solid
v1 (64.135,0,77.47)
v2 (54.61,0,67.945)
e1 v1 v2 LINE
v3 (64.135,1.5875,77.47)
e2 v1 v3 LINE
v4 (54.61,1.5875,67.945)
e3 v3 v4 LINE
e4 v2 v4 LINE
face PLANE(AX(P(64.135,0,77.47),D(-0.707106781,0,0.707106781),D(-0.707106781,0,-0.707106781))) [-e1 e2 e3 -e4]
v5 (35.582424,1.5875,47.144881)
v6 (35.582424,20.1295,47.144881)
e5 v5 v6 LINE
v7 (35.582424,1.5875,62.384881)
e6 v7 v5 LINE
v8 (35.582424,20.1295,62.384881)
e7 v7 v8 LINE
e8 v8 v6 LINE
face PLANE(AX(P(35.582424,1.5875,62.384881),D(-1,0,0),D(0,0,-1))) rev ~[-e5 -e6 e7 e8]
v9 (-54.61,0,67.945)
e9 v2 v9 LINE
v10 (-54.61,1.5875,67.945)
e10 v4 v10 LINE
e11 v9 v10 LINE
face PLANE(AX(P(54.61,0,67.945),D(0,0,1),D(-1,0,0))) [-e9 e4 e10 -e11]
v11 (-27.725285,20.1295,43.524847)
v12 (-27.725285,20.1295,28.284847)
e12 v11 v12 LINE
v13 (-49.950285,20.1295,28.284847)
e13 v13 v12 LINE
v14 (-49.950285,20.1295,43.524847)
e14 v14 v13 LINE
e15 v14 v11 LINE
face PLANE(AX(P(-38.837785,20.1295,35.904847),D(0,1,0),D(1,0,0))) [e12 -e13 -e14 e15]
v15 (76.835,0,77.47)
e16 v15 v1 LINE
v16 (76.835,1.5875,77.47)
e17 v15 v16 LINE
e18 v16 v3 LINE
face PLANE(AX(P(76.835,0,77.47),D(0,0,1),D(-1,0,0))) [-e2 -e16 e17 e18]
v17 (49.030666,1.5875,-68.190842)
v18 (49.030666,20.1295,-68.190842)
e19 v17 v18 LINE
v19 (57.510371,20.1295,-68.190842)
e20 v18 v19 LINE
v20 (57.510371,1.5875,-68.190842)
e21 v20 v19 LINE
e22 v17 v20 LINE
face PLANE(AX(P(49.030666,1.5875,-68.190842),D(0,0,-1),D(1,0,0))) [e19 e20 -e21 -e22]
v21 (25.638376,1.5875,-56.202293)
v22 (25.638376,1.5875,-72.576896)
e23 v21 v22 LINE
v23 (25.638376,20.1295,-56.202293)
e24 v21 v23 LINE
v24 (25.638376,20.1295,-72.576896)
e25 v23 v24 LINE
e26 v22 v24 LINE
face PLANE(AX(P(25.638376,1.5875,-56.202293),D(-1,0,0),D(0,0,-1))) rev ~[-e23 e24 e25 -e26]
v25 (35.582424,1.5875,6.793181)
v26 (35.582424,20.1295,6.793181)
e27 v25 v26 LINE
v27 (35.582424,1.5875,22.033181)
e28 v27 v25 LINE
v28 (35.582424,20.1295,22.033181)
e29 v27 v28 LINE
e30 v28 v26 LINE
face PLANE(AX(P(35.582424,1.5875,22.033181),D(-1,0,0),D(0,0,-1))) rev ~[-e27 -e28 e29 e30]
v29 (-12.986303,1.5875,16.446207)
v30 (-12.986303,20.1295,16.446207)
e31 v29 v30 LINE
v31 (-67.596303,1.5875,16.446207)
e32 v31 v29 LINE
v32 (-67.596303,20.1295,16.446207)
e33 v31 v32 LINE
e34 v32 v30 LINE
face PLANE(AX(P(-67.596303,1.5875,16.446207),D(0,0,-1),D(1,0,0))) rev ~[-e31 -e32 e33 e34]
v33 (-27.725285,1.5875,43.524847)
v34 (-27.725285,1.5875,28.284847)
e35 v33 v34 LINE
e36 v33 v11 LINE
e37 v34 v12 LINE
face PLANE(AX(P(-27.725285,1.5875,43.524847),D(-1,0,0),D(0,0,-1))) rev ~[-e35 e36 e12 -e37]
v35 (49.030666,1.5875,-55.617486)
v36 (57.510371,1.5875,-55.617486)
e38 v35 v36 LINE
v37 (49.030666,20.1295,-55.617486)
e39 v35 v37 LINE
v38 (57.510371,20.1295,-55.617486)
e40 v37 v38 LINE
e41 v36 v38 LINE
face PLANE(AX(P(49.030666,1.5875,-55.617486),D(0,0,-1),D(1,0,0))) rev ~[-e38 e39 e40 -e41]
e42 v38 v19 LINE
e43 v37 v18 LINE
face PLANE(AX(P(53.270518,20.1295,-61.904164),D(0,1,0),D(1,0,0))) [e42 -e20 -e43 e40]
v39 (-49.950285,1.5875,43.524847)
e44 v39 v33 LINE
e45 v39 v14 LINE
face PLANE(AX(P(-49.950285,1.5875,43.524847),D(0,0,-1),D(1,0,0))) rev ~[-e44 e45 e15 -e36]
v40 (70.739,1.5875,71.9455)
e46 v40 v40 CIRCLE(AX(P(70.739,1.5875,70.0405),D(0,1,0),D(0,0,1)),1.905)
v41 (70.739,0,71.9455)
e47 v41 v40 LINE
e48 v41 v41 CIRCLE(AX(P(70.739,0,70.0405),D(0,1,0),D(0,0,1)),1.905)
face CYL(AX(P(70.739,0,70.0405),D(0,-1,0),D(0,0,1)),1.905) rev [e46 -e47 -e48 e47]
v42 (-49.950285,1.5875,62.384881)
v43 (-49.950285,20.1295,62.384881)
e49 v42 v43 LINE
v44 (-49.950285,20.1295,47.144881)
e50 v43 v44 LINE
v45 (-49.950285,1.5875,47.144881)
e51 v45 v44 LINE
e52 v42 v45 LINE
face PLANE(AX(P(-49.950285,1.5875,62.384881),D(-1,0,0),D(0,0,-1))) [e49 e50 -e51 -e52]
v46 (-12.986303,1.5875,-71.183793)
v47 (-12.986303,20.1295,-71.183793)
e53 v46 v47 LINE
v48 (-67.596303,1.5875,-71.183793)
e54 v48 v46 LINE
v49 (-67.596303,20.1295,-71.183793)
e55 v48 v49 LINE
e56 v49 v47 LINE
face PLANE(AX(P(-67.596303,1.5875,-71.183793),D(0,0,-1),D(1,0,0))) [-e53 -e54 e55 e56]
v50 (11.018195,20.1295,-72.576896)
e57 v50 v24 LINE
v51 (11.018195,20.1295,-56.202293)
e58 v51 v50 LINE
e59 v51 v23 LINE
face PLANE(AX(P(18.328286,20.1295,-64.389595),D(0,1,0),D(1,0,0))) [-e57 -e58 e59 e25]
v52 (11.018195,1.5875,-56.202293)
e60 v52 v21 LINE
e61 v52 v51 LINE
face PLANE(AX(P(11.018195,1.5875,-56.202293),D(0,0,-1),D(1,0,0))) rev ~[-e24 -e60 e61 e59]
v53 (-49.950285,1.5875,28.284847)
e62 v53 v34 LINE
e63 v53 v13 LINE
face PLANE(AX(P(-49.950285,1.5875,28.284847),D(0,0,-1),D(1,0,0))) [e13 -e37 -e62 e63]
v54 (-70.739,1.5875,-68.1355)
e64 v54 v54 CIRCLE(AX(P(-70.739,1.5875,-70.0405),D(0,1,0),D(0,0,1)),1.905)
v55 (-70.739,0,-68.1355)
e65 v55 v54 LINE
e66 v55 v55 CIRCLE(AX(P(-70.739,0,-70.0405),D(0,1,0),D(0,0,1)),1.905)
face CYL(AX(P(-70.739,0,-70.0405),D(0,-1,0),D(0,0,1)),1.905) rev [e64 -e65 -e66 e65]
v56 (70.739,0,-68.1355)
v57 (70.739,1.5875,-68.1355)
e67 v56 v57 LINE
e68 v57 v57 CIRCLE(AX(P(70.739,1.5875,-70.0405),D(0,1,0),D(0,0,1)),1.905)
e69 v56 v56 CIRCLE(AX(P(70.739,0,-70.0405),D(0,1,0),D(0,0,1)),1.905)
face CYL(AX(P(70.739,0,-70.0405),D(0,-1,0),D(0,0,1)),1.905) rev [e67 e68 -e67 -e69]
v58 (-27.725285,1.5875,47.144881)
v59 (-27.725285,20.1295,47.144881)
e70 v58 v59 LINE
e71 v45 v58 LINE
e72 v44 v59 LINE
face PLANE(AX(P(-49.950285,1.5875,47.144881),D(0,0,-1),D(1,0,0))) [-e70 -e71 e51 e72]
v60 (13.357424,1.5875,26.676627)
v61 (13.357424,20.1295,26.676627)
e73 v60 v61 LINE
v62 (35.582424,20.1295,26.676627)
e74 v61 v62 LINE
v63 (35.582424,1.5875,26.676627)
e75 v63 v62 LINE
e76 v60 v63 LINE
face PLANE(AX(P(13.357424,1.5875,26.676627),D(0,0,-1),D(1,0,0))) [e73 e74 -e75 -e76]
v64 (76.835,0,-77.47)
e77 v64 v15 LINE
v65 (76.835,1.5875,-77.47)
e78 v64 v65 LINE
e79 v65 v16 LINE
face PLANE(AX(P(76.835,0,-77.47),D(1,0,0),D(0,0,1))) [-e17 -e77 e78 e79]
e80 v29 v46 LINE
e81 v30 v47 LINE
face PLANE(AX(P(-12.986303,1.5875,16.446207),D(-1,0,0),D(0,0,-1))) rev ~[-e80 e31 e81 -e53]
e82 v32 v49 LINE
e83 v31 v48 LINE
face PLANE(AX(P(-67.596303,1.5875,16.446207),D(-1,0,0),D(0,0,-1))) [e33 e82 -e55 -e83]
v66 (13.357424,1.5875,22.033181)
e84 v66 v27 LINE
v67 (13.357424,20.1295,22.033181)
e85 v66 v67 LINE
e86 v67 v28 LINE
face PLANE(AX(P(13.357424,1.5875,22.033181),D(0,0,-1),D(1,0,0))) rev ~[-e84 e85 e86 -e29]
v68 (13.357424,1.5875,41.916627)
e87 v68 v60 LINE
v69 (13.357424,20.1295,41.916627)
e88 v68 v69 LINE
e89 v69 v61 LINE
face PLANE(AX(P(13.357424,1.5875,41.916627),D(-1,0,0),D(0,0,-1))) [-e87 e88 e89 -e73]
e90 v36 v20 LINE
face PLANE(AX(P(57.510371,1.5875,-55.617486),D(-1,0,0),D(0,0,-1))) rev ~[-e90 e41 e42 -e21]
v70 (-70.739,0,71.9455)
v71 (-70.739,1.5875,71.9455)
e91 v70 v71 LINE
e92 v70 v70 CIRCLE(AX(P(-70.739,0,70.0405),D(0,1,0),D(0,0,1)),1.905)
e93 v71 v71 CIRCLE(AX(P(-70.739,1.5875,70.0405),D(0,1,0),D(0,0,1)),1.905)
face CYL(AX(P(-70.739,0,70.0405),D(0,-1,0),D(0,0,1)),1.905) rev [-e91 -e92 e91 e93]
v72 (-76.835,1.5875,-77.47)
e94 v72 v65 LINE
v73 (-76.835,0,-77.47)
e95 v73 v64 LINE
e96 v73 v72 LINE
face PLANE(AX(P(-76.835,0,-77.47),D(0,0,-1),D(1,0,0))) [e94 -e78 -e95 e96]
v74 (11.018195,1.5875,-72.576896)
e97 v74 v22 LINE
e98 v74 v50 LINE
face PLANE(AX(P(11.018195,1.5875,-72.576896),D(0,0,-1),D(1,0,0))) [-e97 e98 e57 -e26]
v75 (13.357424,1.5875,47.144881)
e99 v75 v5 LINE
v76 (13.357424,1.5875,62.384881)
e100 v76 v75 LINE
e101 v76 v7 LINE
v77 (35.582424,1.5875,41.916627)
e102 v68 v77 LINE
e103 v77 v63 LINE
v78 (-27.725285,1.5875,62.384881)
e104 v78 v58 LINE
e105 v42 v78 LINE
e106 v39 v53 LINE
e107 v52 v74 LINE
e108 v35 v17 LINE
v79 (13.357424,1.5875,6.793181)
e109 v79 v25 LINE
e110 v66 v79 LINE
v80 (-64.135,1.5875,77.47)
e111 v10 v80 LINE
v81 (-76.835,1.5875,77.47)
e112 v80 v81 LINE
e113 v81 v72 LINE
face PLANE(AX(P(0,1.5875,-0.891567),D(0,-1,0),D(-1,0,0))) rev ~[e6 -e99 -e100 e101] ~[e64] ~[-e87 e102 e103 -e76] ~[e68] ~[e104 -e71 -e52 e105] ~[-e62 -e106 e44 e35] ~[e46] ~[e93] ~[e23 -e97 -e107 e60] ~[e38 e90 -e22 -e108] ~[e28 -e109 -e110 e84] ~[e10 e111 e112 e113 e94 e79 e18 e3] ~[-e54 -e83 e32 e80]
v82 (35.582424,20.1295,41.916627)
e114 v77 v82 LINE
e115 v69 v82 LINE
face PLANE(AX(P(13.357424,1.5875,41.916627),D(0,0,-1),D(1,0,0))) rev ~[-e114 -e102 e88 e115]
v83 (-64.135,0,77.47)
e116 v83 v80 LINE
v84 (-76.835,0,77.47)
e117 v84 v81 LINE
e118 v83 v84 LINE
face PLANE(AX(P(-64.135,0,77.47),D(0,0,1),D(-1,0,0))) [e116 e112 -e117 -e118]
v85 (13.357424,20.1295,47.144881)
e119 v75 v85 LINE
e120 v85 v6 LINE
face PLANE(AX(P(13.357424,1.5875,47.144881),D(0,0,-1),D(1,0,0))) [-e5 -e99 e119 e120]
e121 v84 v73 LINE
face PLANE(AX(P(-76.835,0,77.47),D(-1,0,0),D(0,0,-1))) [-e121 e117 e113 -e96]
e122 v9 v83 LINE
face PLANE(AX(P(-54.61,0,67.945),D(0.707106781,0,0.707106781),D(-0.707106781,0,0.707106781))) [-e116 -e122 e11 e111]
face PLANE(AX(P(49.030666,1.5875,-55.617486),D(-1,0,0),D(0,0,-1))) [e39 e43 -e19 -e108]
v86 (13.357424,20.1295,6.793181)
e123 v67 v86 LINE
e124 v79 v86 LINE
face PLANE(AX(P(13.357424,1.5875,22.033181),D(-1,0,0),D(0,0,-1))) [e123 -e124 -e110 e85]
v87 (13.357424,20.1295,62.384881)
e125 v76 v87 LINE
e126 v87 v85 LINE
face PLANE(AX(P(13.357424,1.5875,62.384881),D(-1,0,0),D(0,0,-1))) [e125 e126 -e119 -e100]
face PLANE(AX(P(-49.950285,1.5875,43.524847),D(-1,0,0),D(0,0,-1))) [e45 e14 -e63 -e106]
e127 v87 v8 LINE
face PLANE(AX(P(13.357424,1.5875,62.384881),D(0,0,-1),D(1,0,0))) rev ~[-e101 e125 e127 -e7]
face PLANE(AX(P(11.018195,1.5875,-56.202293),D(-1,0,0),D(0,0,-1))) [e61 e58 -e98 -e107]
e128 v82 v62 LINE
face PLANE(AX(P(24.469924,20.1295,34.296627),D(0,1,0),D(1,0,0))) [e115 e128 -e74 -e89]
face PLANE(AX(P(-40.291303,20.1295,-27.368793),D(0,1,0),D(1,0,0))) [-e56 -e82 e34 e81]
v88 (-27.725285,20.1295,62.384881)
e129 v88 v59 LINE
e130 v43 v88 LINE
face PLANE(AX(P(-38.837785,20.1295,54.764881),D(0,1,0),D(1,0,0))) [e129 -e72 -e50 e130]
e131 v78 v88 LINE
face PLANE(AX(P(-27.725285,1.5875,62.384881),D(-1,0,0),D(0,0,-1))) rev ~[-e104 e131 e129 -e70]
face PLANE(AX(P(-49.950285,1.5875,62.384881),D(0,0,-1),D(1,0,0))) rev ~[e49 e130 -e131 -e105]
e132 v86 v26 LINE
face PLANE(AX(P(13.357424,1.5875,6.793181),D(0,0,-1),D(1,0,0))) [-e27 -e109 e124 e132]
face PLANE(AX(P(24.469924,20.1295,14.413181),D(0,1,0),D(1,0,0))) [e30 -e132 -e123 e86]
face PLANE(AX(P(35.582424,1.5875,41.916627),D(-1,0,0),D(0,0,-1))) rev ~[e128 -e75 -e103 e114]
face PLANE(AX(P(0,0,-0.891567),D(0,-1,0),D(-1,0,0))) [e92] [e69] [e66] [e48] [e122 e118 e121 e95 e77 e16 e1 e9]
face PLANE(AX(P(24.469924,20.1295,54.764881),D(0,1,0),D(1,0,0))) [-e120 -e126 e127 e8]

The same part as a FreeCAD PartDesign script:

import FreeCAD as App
import Part
import Sketcher

V = App.Vector
Q = App.Units.Quantity


def add_polygon(sketch, points):
    """Adds a closed chain of lines whose ends are joined by coincident constraints."""
    first, n = sketch.GeometryCount, len(points)
    for a, b in zip(points, points[1:] + points[:1]):
        sketch.addGeometry(Part.LineSegment(App.Vector(*a, 0), App.Vector(*b, 0)), False)
    for i in range(n):
        sketch.addConstraint(Sketcher.Constraint("Coincident", first + i, 2, first + (i + 1) % n, 1))

doc = App.newDocument("Part")
body = doc.addObject("PartDesign::Body", "Body")

# Sketch on XZ plane
sketch1 = doc.addObject("Sketcher::SketchObject", "Sketch")
body.addObject(sketch1)
sketch1.AttachmentSupport = (doc.XZ_Plane, [""])
sketch1.MapMode = "FlatFace"
add_polygon(sketch1, [(76.835, -77.47), (-76.835, -77.47), (-76.835, 77.47), (-64.135, 77.47), (-54.61, 67.945), (54.61, 67.945), (64.135, 77.47), (76.835, 77.47)])  # lines 0-7
sketch1.addGeometry(Part.Circle(V(70.739, 70.0405, 0), V(0, 0, 1), 1.905), False)  # 8
sketch1.addGeometry(Part.Circle(V(-70.739, 70.0405, 0), V(0, 0, 1), 1.905), False)  # 9
sketch1.addGeometry(Part.Circle(V(70.739, -70.0405, 0), V(0, 0, 1), 1.905), False)  # 10
sketch1.addGeometry(Part.Circle(V(-70.739, -70.0405, 0), V(0, 0, 1), 1.905), False)  # 11
sketch1.addConstraint([
    Sketcher.Constraint("Horizontal", 0),
    Sketcher.Constraint("Vertical", 1),
    Sketcher.Constraint("Horizontal", 2),
    Sketcher.Constraint("Horizontal", 4),
    Sketcher.Constraint("Horizontal", 6),
    Sketcher.Constraint("Vertical", 7),
    Sketcher.Constraint("Equal", 8, 9),
    Sketcher.Constraint("Equal", 9, 10),
    Sketcher.Constraint("Equal", 10, 11),
    Sketcher.Constraint("Symmetric", 9, 3, 10, 3, -1, 1),
    Sketcher.Constraint("Symmetric", 8, 3, 11, 3, -1, 1),
    Sketcher.Constraint("Symmetric", 0, 2, 6, 2, -1, 1),
    Sketcher.Constraint("Symmetric", 8, 3, 9, 3, -2),
    Sketcher.Constraint("Symmetric", 2, 2, 5, 2, -2),
    Sketcher.Constraint("Perpendicular", 3, 5),
    Sketcher.Constraint("Equal", 3, 5),
    Sketcher.Constraint("Diameter", 8, Q("0.15 in")),
    Sketcher.Constraint("DistanceX", 2, 1, 2, 2, Q("0.5 in")),
    Sketcher.Constraint("DistanceX", 4, 1, 4, 2, Q("4.3 in")),
    Sketcher.Constraint("DistanceY", 1, 1, 1, 2, Q("6.1 in")),
    Sketcher.Constraint("DistanceX", 0, 2, 0, 1, Q("6.05 in")),
    Sketcher.Constraint("DistanceX", 9, 3, 8, 3, Q("5.57 in")),
    Sketcher.Constraint("DistanceY", 10, 3, 8, 3, Q("5.515 in")),
])
pad1 = doc.addObject("PartDesign::Pad", "Pad")
body.addObject(pad1)
pad1.Profile = sketch1
pad1.Length = Q("0.0625 in")
pad1.Reversed = True

# Sketch on XZ plane
sketch2 = doc.addObject("Sketcher::SketchObject", "Sketch001")
body.addObject(sketch2)
sketch2.AttachmentSupport = (doc.XZ_Plane, [""])
sketch2.MapMode = "FlatFace"
sketch2.AttachmentOffset = App.Placement(V(0, 0, -0.0625 * 25.4), App.Rotation())
add_polygon(sketch2, [(-49.950285, 47.144881), (-49.950285, 62.384881), (-27.725285, 62.384881), (-27.725285, 47.144881)])  # lines 0-3
add_polygon(sketch2, [(-49.950285, 28.284847), (-49.950285, 43.524847), (-27.725285, 43.524847), (-27.725285, 28.284847)])  # lines 4-7
add_polygon(sketch2, [(13.357424, 47.144881), (13.357424, 62.384881), (35.582424, 62.384881), (35.582424, 47.144881)])  # lines 8-11
add_polygon(sketch2, [(13.357424, 26.676627), (13.357424, 41.916627), (35.582424, 41.916627), (35.582424, 26.676627)])  # lines 12-15
add_polygon(sketch2, [(13.357424, 6.793181), (13.357424, 22.033181), (35.582424, 22.033181), (35.582424, 6.793181)])  # lines 16-19
add_polygon(sketch2, [(11.018195, -72.576896), (11.018195, -56.202293), (25.638376, -56.202293), (25.638376, -72.576896)])  # lines 20-23
add_polygon(sketch2, [(-67.596303, -71.183793), (-67.596303, 16.446207), (-12.986303, 16.446207), (-12.986303, -71.183793)])  # lines 24-27
add_polygon(sketch2, [(49.030666, -68.190842), (49.030666, -55.617486), (57.510371, -55.617486), (57.510371, -68.190842)])  # lines 28-31
sketch2.addConstraint([
    Sketcher.Constraint("Vertical", 0),
    Sketcher.Constraint("Horizontal", 1),
    Sketcher.Constraint("Vertical", 2),
    Sketcher.Constraint("Horizontal", 3),
    Sketcher.Constraint("Vertical", 4),
    Sketcher.Constraint("Horizontal", 5),
    Sketcher.Constraint("Vertical", 6),
    Sketcher.Constraint("Horizontal", 7),
    Sketcher.Constraint("Vertical", 8),
    Sketcher.Constraint("Horizontal", 9),
    Sketcher.Constraint("Vertical", 10),
    Sketcher.Constraint("Horizontal", 11),
    Sketcher.Constraint("Vertical", 12),
    Sketcher.Constraint("Horizontal", 13),
    Sketcher.Constraint("Vertical", 14),
    Sketcher.Constraint("Horizontal", 15),
    Sketcher.Constraint("Vertical", 16),
    Sketcher.Constraint("Horizontal", 17),
    Sketcher.Constraint("Vertical", 18),
    Sketcher.Constraint("Horizontal", 19),
    Sketcher.Constraint("Vertical", 20),
    Sketcher.Constraint("Horizontal", 21),
    Sketcher.Constraint("Vertical", 22),
    Sketcher.Constraint("Horizontal", 23),
    Sketcher.Constraint("Vertical", 24),
    Sketcher.Constraint("Horizontal", 25),
    Sketcher.Constraint("Vertical", 26),
    Sketcher.Constraint("Horizontal", 27),
    Sketcher.Constraint("Vertical", 28),
    Sketcher.Constraint("Horizontal", 29),
    Sketcher.Constraint("Vertical", 30),
    Sketcher.Constraint("Horizontal", 31),
    Sketcher.Constraint("Horizontal", 1, 2, 8, 2),
    Sketcher.Constraint("Horizontal", 3, 2, 10, 2),
    Sketcher.Constraint("Vertical", 3, 2, 4, 2),
    Sketcher.Constraint("Vertical", 2, 2, 5, 2),
    Sketcher.Constraint("Vertical", 11, 2, 12, 2),
    Sketcher.Constraint("Vertical", 10, 2, 13, 2),
    Sketcher.Constraint("Vertical", 15, 2, 16, 2),
    Sketcher.Constraint("Vertical", 14, 2, 17, 2),
    Sketcher.Constraint("Equal", 7, 9),
    Sketcher.Constraint("Equal", 2, 4),
    Sketcher.Constraint("Equal", 10, 12),
    Sketcher.Constraint("Equal", 14, 16),
    Sketcher.Constraint("DistanceY", 0, 1, 0, 2, Q("0.6 in")),
    Sketcher.Constraint("DistanceX", 25, 1, 25, 2, Q("2.15 in")),
    Sketcher.Constraint("DistanceY", 24, 1, 24, 2, Q("3.45 in")),
    Sketcher.Constraint("DistanceX", 1, 1, 1, 2, Q("0.875 in")),
    Sketcher.Constraint("DistanceX", 21, 1, 21, 2, Q("14.620181 mm")),
    Sketcher.Constraint("DistanceY", 16, 2, 11, 2, Q("25.1117 mm")),
    Sketcher.Constraint("DistanceY", 26, 2, 20, 2, Q("14.981499 mm")),
    Sketcher.Constraint("DistanceX", 29, 1, 29, 2, Q("8.479705 mm")),
    Sketcher.Constraint("DistanceY", 20, 1, 20, 2, Q("16.374603 mm")),
    Sketcher.Constraint("DistanceY", 28, 1, 28, 2, Q("12.573356 mm")),
    Sketcher.Constraint("DistanceY", -1, 1, 0, 2, Q("62.384881 mm")),
    Sketcher.Constraint("DistanceX", -1, 1, 29, 2, Q("57.510371 mm")),
    Sketcher.Constraint("DistanceY", 30, 2, -1, 1, Q("68.190842 mm")),
    Sketcher.Constraint("DistanceX", 1, 2, 8, 2, Q("41.082709 mm")),
    Sketcher.Constraint("DistanceY", 12, 2, 5, 2, Q("1.60822 mm")),
    Sketcher.Constraint("DistanceX", 20, 2, 19, 2, Q("2.339229 mm")),
    Sketcher.Constraint("DistanceY", 20, 2, 15, 2, Q("82.878921 mm")),
    Sketcher.Constraint("DistanceX", 24, 2, 7, 2, Q("17.646018 mm")),
    Sketcher.Constraint("DistanceX", 21, 2, 28, 2, Q("23.39229 mm")),
    Sketcher.Constraint("DistanceY", 22, 2, 28, 2, Q("16.95941 mm")),
])
pad2 = doc.addObject("PartDesign::Pad", "Pad001")
body.addObject(pad2)
pad2.Profile = sketch2
pad2.Length = Q("0.73 in")
pad2.Reversed = True

doc.recompute()
